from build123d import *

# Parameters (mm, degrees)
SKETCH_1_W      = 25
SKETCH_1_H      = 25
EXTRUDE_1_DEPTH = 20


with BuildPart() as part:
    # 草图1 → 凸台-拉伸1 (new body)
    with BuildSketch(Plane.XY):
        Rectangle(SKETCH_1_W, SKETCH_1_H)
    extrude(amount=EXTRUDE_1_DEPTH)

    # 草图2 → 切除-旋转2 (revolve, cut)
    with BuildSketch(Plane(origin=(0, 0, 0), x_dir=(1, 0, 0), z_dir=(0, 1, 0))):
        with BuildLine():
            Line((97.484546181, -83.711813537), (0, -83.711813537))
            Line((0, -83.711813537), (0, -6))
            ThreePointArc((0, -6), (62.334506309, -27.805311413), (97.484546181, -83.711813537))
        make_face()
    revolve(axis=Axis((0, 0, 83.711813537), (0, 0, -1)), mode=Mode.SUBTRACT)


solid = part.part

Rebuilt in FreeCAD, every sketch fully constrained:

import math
import FreeCAD as App
import Part
import Sketcher
from FreeCAD import Vector

doc = App.newDocument("Part")
params = doc.addObject("Spreadsheet::Sheet", "Params")
for row, (alias, value) in enumerate([
    ("sketch1_width", "25 mm"),
    ("pad1_length", "20 mm"),
    ("sketch2_radius", "100 mm"),
    ("groove_angle", "360 deg"),
], start=1):
    params.set(f"A{row}", alias)
    params.set(f"B{row}", "=" + value)
    params.setAlias(f"B{row}", alias)

body = doc.addObject("PartDesign::Body", "Body")

sketch1 = body.newObject("Sketcher::SketchObject", "Sketch")
sketch1.AttachmentSupport = (doc.getObject("XY_Plane"), [""])
sketch1.MapMode = "FlatFace"
sketch1.addGeometry([
    Part.LineSegment(Vector(-12, 12, 0), Vector(-12, -12, 0)),
    Part.LineSegment(Vector(-12, -12, 0), Vector(12, -12, 0)),
    Part.LineSegment(Vector(12, -12, 0), Vector(12, 12, 0)),
    Part.LineSegment(Vector(12, 12, 0), Vector(-12, 12, 0)),
], False)
sketch1.addConstraint([
    Sketcher.Constraint("Coincident", 0, 2, 1, 1),
    Sketcher.Constraint("Coincident", 1, 2, 2, 1),
    Sketcher.Constraint("Coincident", 2, 2, 3, 1),
    Sketcher.Constraint("Coincident", 3, 2, 0, 1),
    Sketcher.Constraint("Vertical", 0),
    Sketcher.Constraint("Horizontal", 1),
    Sketcher.Constraint("Vertical", 2),
    Sketcher.Constraint("Horizontal", 3),
    Sketcher.Constraint("Symmetric", 0, 2, 2, 2, -1, 1),
    Sketcher.Constraint("Equal", 3, 0),
    Sketcher.Constraint("DistanceX", 1, 1, 1, 2, 25.0),
])
sketch1.setExpression("Constraints[10]", "Params.sketch1_width")
pad1 = body.newObject("PartDesign::Pad", "Pad")
pad1.Profile = sketch1
pad1.setExpression("Length", "Params.pad1_length")

sketch2 = body.newObject("Sketcher::SketchObject", "Sketch001")
sketch2.AttachmentSupport = (doc.getObject("XZ_Plane"), [""])
sketch2.MapMode = "FlatFace"
sketch2.addGeometry([
    Part.LineSegment(Vector(0, 84, 0), Vector(97, 84, 0)),
    Part.ArcOfCircle(Part.Circle(Vector(0, 106, 0), Vector(0, 0, 1), 100), math.radians(-90), math.radians(-13)),
    Part.LineSegment(Vector(0, 6, 0), Vector(0, 84, 0)),
], False)
sketch2.addConstraint([
    Sketcher.Constraint("Coincident", 0, 2, 1, 2),
    Sketcher.Constraint("Coincident", 1, 1, 2, 1),
    Sketcher.Constraint("Coincident", 2, 2, 0, 1),
    Sketcher.Constraint("Horizontal", 0),
    Sketcher.Constraint("Vertical", 2),
    Sketcher.Constraint("PointOnObject", 1, 3, -2),
    Sketcher.Constraint("PointOnObject", 1, 1, -2),
    Sketcher.Constraint("Radius", 1, 100.0),
    Sketcher.Constraint("DistanceY", -1, 1, 1, 3, 106.0),
    Sketcher.Constraint("DistanceX", 0, 1, 0, 2, 97.484546),
])
sketch2.setExpression("Constraints[7]", "Params.sketch2_radius")
groove = body.newObject("PartDesign::Groove", "Groove")
groove.Profile = sketch2
groove.ReferenceAxis = (sketch2, ["V_Axis"])
groove.setExpression("Angle", "Params.groove_angle")

doc.recompute()
